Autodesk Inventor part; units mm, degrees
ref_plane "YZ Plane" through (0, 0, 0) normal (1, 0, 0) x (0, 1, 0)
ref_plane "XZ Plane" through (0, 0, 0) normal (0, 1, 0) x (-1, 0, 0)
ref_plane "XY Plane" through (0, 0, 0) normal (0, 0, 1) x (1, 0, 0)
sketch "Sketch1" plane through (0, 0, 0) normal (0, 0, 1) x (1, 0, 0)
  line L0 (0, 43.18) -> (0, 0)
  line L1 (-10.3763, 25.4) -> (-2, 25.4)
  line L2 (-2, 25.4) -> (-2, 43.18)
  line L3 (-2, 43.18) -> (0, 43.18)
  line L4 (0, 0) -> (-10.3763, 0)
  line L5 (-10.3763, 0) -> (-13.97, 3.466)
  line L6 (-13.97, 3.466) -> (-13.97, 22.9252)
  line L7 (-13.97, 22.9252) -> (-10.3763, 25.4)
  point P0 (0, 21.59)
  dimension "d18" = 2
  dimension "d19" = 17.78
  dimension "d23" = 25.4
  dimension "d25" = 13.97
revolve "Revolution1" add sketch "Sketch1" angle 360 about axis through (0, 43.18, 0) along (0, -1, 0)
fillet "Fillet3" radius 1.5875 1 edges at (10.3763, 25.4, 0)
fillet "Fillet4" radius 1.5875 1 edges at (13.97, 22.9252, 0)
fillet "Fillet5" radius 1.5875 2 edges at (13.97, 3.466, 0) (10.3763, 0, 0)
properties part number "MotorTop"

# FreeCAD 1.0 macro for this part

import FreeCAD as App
import Part
import Sketcher

V = App.Vector
Q = App.Units.Quantity


def edges_at(feature, points):
    """Names of the edges that pass closest to the given points."""
    edges = feature.Shape.Edges
    near = lambda p: min(range(len(edges)), key=lambda i: edges[i].distToShape(Part.Vertex(*p))[0])
    return sorted({f"Edge{near(p) + 1}" for p in points})

doc = App.newDocument("Part")
body = doc.addObject("PartDesign::Body", "Body")

# Sketch on XY plane
sketch1 = body.newObject("Sketcher::SketchObject", "Sketch")
sketch1.AttachmentSupport = (doc.getObject("XY_Plane"), [""])
sketch1.MapMode = "FlatFace"
sketch1.addGeometry([
    Part.LineSegment(V(0, 0, 0), V(0, 43.18, 0)),  # 0
    Part.LineSegment(V(0, 43.18, 0), V(-2, 43.18, 0)),  # 1
    Part.LineSegment(V(-2, 43.18, 0), V(-2, 25.4, 0)),  # 2
    Part.LineSegment(V(-2, 25.4, 0), V(-10.3763, 25.4, 0)),  # 3
    Part.LineSegment(V(-10.3763, 25.4, 0), V(-13.97, 22.9252, 0)),  # 4
    Part.LineSegment(V(-13.97, 22.9252, 0), V(-13.97, 3.466, 0)),  # 5
    Part.LineSegment(V(-13.97, 3.466, 0), V(-10.3763, 0, 0)),  # 6
    Part.LineSegment(V(-10.3763, 0, 0), V(0, 0, 0)),  # 7
], False)
sketch1.addConstraint([
    Sketcher.Constraint("Coincident", 0, 2, 1, 1),
    Sketcher.Constraint("Coincident", 1, 2, 2, 1),
    Sketcher.Constraint("Coincident", 2, 2, 3, 1),
    Sketcher.Constraint("Coincident", 3, 2, 4, 1),
    Sketcher.Constraint("Coincident", 4, 2, 5, 1),
    Sketcher.Constraint("Coincident", 5, 2, 6, 1),
    Sketcher.Constraint("Coincident", 6, 2, 7, 1),
    Sketcher.Constraint("Coincident", 7, 2, 0, 1),
    Sketcher.Constraint("Vertical", 0),
    Sketcher.Constraint("Horizontal", 1),
    Sketcher.Constraint("Vertical", 2),
    Sketcher.Constraint("Horizontal", 3),
    Sketcher.Constraint("Vertical", 5),
    Sketcher.Constraint("Horizontal", 7),
    Sketcher.Constraint("Coincident", 7, 2, -1, 1),
    Sketcher.Constraint("Vertical", 3, 2, 6, 2),
    Sketcher.Constraint("DistanceY", 2, 2, 2, 1, Q("0.7 in")),
    Sketcher.Constraint("DistanceY", -1, 1, 2, 2, Q("1 in")),
    Sketcher.Constraint("DistanceX", 4, 2, -1, 1, Q("0.55 in")),
    Sketcher.Constraint("DistanceX", 1, 2, 1, 1, 2.0),
    Sketcher.Constraint("DistanceY", 5, 2, 5, 1, Q("0.7661 in")),
    Sketcher.Constraint("DistanceX", 3, 2, 3, 1, 8.3763),
    Sketcher.Constraint("Distance", 4, 4.3634),
])
revolution = body.newObject("PartDesign::Revolution", "Revolution")
revolution.Profile = sketch1
revolution.ReferenceAxis = (sketch1, ["V_Axis"])
revolution.Angle = 360
doc.recompute()

fillet = body.newObject("PartDesign::Fillet", "Fillet")
fillet.Base = (revolution, edges_at(revolution, [(10.376, 25.4, 0)]))
fillet.Radius = Q("0.0625 in")
doc.recompute()

fillet2 = body.newObject("PartDesign::Fillet", "Fillet001")
fillet2.Base = (fillet, edges_at(fillet, [(13.97, 22.925, 0)]))
fillet2.Radius = Q("0.0625 in")
doc.recompute()

fillet3 = body.newObject("PartDesign::Fillet", "Fillet002")
fillet3.Base = (fillet2, edges_at(fillet2, [(13.97, 3.466, 0), (10.376, 0, 0)]))
fillet3.Radius = Q("0.0625 in")

doc.recompute()
